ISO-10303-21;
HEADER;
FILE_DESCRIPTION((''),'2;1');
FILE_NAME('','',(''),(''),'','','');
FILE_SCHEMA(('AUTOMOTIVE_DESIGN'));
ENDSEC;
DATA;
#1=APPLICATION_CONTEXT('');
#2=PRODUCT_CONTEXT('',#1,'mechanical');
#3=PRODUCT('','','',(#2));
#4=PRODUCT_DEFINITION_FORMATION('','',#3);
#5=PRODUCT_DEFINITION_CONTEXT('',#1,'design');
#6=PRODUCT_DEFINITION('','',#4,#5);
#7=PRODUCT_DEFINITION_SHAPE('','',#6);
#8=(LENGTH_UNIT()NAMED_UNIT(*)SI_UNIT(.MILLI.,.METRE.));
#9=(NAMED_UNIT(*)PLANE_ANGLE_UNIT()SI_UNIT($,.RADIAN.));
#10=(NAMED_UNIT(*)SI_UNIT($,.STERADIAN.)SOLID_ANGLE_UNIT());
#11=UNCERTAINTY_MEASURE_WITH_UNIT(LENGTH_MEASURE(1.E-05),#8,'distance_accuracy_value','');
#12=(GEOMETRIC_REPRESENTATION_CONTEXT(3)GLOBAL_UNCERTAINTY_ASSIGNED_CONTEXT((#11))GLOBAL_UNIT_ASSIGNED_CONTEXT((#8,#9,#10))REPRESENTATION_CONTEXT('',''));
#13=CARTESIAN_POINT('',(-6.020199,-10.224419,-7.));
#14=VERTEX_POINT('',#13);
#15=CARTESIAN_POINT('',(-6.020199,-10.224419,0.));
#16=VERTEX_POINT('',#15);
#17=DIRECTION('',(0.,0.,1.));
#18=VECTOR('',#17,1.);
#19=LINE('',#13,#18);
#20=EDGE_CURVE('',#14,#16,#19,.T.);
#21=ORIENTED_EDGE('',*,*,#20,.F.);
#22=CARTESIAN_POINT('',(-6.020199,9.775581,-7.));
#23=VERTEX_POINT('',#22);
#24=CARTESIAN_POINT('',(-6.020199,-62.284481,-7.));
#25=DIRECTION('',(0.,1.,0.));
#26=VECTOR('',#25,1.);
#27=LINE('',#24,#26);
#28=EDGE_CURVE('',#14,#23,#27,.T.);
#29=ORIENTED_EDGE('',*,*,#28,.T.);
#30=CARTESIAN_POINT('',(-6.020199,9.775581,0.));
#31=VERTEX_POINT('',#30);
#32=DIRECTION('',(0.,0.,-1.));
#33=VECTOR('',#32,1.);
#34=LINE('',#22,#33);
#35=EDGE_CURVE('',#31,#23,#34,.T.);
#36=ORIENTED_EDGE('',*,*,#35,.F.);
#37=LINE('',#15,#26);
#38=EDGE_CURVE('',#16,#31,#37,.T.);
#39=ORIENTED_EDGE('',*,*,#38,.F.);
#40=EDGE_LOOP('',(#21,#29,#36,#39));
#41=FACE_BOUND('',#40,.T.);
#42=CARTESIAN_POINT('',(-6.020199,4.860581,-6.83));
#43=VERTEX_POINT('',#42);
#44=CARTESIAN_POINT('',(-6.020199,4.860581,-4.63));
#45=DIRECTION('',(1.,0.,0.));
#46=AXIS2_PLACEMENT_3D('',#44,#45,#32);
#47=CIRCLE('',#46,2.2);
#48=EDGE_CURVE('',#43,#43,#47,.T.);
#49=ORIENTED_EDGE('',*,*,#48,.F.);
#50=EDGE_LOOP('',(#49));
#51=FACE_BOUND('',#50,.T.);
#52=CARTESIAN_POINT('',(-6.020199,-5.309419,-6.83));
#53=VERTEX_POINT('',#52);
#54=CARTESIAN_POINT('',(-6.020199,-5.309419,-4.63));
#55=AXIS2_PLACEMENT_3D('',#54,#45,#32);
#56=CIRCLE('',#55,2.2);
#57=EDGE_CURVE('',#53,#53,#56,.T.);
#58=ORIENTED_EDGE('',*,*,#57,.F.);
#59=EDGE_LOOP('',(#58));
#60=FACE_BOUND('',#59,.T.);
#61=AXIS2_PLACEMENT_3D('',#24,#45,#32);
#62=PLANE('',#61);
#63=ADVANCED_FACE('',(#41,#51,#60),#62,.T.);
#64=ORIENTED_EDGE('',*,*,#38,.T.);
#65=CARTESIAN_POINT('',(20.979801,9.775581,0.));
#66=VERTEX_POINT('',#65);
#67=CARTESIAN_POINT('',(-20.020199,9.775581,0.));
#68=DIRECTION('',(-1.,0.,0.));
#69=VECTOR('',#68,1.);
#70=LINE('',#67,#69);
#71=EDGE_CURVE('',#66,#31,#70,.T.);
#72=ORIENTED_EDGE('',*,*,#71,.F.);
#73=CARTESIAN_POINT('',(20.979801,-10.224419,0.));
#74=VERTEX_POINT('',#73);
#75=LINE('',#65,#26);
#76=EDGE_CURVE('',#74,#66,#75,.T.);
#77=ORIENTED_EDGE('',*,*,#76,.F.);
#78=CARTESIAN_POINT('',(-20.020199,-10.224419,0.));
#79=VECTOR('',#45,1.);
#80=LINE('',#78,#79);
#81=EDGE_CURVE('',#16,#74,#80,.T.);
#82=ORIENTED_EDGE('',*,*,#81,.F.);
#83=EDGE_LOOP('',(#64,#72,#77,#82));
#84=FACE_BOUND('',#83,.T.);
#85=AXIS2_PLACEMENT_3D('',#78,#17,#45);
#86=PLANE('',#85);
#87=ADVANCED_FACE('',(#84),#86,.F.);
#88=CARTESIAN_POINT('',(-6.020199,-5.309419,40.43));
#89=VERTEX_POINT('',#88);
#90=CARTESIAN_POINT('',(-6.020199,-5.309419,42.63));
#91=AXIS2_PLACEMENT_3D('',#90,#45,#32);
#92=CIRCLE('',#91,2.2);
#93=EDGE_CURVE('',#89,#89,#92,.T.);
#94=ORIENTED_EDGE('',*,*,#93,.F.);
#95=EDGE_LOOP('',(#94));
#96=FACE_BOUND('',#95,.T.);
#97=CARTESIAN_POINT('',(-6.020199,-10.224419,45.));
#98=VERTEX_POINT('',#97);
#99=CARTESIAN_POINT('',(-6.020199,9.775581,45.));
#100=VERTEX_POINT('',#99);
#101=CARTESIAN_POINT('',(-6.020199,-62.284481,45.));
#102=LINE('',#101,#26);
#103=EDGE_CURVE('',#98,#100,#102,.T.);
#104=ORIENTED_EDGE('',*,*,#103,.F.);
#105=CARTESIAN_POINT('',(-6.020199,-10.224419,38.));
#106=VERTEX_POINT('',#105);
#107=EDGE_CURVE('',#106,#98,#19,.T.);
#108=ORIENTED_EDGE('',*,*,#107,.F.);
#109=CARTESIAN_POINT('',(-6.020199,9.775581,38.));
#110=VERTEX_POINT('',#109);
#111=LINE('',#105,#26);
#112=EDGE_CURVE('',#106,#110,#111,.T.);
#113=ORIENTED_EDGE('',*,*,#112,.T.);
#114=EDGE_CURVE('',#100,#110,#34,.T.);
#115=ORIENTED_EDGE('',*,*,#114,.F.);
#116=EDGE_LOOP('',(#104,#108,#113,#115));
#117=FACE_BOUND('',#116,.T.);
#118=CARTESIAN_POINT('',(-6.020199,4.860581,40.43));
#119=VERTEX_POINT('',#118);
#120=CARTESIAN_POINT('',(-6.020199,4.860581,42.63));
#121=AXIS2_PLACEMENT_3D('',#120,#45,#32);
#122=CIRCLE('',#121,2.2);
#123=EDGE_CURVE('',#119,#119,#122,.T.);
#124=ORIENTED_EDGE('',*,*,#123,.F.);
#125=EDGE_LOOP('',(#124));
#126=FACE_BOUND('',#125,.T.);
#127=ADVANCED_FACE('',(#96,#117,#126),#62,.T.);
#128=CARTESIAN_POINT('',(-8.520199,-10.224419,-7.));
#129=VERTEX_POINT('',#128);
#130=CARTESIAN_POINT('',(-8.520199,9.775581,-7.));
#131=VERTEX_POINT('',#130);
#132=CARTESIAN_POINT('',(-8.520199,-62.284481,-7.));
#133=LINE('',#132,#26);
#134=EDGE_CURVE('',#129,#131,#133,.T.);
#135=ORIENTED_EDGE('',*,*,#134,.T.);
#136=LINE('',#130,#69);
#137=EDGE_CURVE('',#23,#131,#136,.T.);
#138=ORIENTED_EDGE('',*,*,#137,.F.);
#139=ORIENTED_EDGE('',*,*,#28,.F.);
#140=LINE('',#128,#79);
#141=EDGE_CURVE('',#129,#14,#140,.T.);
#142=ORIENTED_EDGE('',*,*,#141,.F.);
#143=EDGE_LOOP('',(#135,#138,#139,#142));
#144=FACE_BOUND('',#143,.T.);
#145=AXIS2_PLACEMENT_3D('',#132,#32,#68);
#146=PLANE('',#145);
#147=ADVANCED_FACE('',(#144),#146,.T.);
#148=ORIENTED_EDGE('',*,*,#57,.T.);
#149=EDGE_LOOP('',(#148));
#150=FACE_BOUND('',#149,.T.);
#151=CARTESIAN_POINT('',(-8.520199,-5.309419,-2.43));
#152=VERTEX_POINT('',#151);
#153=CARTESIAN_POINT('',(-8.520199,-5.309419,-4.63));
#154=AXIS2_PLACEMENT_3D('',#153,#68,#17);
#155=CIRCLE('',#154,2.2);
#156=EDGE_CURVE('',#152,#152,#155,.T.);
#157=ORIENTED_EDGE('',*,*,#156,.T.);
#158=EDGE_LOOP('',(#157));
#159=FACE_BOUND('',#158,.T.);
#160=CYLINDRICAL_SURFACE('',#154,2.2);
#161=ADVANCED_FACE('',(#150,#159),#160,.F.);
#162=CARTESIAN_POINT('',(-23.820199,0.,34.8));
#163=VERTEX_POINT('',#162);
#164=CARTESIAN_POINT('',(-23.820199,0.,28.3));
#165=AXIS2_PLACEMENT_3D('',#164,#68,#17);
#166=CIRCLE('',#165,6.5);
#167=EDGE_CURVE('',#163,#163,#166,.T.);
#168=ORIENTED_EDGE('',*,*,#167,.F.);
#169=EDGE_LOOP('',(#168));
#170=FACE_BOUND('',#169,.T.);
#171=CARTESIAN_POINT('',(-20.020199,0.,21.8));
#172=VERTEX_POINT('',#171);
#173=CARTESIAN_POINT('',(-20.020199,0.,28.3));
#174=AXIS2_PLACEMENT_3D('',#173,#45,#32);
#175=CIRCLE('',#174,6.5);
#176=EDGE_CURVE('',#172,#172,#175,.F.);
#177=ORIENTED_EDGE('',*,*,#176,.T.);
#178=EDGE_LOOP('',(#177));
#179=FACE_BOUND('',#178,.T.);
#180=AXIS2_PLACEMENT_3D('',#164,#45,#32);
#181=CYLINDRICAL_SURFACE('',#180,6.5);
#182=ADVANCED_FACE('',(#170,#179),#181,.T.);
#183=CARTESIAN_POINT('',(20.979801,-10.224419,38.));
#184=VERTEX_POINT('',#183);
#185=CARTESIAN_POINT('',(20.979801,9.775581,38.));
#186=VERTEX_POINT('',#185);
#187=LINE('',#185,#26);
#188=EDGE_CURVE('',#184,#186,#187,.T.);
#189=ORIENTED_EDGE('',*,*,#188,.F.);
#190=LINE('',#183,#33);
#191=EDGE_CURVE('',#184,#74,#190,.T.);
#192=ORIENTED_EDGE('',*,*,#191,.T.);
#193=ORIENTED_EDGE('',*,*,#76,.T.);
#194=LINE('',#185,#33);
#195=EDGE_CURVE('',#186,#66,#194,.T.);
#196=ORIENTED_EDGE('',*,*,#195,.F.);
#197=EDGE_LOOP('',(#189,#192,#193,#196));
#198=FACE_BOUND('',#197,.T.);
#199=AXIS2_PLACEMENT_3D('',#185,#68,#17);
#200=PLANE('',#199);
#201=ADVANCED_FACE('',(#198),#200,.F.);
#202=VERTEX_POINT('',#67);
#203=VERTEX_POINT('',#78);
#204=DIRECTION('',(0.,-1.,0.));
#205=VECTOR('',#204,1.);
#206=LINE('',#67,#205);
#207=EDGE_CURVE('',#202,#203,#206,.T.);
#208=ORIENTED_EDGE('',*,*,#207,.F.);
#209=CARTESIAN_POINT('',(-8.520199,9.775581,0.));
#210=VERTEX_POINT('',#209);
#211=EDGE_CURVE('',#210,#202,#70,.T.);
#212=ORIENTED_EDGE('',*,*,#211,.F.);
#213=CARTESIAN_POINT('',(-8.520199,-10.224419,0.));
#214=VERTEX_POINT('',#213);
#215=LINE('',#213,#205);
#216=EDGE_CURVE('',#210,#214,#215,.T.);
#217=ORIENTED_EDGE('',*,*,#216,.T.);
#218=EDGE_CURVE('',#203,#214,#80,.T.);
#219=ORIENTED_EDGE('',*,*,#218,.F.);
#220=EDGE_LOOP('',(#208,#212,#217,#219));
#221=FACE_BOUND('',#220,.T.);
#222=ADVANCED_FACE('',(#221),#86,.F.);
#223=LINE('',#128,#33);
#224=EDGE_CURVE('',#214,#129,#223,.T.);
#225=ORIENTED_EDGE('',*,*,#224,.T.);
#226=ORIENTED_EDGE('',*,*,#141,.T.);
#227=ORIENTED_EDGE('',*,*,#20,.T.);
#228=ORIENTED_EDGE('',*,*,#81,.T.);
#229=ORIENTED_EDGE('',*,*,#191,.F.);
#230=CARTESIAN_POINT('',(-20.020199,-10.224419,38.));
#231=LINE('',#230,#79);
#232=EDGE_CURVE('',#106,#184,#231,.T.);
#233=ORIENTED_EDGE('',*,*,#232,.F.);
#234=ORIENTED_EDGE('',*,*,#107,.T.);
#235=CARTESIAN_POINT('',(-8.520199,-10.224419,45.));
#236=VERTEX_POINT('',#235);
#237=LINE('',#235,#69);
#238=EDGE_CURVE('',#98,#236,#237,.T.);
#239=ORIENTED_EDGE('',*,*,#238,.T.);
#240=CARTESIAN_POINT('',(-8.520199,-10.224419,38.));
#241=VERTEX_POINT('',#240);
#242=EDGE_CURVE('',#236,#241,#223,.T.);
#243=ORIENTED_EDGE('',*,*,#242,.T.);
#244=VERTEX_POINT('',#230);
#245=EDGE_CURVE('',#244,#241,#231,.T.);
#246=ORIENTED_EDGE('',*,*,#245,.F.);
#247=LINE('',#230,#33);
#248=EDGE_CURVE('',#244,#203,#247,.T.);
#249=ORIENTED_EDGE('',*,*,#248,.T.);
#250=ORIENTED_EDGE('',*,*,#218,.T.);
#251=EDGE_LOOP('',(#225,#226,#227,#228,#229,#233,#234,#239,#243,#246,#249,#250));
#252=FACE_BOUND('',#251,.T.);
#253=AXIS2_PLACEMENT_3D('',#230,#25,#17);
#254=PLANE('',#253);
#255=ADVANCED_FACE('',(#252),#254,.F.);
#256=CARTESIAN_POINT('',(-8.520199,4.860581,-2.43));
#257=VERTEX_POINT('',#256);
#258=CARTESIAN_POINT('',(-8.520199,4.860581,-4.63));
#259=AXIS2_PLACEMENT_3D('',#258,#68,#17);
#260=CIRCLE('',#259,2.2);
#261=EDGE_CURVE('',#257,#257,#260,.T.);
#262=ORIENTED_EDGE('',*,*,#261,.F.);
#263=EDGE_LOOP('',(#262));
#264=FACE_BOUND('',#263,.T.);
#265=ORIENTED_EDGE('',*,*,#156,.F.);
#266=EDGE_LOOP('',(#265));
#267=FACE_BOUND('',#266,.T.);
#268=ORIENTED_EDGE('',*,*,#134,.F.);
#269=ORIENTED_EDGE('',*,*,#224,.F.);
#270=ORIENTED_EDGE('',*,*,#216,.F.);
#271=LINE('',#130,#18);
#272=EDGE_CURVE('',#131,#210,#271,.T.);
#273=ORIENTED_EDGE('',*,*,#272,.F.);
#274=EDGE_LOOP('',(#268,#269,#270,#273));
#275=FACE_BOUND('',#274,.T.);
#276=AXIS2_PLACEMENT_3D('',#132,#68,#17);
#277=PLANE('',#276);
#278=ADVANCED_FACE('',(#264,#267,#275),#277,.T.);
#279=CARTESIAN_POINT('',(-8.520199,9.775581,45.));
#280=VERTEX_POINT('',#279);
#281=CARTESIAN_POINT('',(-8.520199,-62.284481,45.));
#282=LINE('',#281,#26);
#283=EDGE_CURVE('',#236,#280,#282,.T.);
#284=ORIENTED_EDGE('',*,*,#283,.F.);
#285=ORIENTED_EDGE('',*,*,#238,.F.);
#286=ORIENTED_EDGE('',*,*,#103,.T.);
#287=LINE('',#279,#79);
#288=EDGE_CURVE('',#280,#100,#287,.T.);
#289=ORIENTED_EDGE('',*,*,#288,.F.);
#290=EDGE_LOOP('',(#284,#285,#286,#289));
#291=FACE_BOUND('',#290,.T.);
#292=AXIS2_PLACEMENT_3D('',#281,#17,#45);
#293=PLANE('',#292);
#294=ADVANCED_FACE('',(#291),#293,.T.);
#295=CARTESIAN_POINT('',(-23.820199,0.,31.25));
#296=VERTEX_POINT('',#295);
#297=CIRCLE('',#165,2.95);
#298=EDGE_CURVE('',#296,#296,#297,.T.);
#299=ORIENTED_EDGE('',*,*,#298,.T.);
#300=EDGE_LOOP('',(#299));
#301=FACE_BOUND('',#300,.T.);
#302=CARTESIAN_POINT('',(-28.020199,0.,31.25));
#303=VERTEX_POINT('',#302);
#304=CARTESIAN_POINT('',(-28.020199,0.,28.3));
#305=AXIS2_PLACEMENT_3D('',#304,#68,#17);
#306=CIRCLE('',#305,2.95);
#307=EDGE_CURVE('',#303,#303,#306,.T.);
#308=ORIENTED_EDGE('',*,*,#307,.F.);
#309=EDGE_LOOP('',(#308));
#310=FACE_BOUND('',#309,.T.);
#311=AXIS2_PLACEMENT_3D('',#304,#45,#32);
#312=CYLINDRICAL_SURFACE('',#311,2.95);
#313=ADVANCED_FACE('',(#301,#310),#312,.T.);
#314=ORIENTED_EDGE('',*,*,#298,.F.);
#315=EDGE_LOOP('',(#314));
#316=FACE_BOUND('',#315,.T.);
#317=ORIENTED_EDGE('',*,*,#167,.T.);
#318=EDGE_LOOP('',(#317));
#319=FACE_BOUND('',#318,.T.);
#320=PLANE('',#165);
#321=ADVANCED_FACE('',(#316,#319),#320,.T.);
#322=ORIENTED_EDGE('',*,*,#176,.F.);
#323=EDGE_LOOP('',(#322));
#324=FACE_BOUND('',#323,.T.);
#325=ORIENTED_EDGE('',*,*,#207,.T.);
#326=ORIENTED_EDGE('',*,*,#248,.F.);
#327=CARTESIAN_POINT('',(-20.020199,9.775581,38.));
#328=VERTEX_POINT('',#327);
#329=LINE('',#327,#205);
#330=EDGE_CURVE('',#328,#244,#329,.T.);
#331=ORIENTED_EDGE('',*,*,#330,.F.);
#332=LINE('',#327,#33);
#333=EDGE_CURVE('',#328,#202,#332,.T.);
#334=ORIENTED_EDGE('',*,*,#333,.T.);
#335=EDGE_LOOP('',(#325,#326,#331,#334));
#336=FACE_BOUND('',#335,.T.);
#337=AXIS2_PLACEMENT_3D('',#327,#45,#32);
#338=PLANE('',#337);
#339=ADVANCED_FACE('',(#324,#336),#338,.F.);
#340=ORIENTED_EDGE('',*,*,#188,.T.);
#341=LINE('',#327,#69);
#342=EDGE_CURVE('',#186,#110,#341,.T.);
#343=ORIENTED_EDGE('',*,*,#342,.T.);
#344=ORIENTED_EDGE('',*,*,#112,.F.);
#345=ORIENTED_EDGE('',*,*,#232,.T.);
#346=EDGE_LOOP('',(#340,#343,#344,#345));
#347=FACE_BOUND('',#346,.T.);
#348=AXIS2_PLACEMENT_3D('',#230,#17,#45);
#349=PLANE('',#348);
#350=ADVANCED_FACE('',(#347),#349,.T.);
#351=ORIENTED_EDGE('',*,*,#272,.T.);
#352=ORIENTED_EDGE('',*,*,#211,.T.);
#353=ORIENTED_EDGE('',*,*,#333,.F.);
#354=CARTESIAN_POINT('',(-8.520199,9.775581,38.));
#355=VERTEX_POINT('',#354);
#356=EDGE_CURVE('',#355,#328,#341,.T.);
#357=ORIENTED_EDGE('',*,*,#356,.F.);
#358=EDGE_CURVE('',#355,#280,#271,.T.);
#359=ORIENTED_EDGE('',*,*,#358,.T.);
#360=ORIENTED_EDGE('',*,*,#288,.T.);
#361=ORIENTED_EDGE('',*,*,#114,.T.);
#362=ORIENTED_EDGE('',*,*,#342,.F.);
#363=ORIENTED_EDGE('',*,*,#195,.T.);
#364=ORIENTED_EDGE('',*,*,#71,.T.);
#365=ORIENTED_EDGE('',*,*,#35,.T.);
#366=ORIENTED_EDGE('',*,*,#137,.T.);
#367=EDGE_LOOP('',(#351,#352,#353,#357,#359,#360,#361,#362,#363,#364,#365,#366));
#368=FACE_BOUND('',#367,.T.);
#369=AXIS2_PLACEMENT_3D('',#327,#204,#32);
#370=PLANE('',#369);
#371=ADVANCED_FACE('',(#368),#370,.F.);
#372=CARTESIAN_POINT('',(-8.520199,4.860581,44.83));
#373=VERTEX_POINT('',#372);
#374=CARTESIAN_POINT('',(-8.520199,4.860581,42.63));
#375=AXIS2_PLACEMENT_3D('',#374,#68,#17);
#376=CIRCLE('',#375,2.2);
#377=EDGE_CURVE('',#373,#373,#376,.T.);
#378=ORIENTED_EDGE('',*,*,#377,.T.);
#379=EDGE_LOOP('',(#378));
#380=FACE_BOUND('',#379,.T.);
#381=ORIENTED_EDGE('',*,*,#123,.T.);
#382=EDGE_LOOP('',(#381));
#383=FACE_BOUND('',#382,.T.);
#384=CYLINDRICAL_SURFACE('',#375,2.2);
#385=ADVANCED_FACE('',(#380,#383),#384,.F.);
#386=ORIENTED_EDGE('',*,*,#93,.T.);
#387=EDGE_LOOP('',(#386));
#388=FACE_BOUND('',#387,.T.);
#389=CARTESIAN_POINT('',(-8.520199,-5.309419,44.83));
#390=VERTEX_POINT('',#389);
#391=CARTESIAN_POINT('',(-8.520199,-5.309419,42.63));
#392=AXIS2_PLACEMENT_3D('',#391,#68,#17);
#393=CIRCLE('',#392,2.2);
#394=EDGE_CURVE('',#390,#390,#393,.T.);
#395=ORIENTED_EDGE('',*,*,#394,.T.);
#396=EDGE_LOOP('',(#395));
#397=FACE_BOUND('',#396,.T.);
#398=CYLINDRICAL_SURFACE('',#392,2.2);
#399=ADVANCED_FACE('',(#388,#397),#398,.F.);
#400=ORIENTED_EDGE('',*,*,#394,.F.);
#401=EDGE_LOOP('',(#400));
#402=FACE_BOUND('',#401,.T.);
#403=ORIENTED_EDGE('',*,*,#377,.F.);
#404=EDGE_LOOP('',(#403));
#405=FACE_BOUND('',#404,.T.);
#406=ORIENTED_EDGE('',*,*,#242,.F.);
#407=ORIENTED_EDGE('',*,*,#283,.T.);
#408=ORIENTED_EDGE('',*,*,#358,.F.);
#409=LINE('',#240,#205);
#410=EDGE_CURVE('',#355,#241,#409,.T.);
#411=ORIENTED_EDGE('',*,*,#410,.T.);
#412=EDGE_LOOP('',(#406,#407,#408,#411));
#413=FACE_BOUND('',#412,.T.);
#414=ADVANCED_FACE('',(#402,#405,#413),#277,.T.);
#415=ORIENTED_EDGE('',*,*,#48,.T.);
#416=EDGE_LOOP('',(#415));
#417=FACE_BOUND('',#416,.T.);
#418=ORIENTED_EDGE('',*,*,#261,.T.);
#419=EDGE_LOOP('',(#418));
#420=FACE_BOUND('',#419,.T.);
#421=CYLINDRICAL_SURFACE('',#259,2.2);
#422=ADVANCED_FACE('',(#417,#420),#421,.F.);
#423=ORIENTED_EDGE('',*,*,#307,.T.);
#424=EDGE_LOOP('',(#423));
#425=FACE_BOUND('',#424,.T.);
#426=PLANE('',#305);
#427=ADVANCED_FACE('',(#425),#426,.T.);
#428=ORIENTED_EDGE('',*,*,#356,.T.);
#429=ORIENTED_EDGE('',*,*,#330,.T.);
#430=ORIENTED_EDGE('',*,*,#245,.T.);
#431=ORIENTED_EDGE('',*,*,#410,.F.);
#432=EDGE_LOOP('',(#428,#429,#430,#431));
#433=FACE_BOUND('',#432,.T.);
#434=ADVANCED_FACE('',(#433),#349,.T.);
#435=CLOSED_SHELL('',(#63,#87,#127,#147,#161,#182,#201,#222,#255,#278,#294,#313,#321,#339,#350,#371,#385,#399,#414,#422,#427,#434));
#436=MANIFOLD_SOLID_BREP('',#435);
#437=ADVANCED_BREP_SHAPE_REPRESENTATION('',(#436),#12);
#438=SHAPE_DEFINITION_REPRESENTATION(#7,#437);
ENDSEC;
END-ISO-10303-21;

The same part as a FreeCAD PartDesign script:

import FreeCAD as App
import Part
import Sketcher
from FreeCAD import Vector
Q = App.Units.Quantity

doc = App.newDocument("Part")
body = doc.addObject("PartDesign::Body", "Body")

sketch1 = doc.addObject("Sketcher::SketchObject", "Sketch")
body.addObject(sketch1)
sketch1.AttachmentSupport = (doc.XY_Plane, [""])
sketch1.MapMode = "FlatFace"
sketch1.addGeometry([
    Part.LineSegment(Vector(-20, 10, 0), Vector(-20, -10, 0)),
    Part.LineSegment(Vector(-20, -10, 0), Vector(21, -10, 0)),
    Part.LineSegment(Vector(21, -10, 0), Vector(21, 10, 0)),
    Part.LineSegment(Vector(21, 10, 0), Vector(-20, 10, 0)),
], False)
sketch1.addConstraint([
    Sketcher.Constraint("Coincident", 0, 2, 1, 1),
    Sketcher.Constraint("Coincident", 1, 2, 2, 1),
    Sketcher.Constraint("Coincident", 2, 2, 3, 1),
    Sketcher.Constraint("Coincident", 3, 2, 0, 1),
    Sketcher.Constraint("Vertical", 0),
    Sketcher.Constraint("Horizontal", 1),
    Sketcher.Constraint("Vertical", 2),
    Sketcher.Constraint("Horizontal", 3),
    Sketcher.Constraint("DistanceX", 1, 1, 1, 2, Q("41 mm")),
    Sketcher.Constraint("DistanceY", 0, 2, 0, 1, Q("20 mm")),
    Sketcher.Constraint("DistanceX", 0, 2, -1, 1, Q("20.020199 mm")),
    Sketcher.Constraint("DistanceY", 0, 2, -1, 1, Q("10.224419 mm")),
])
pad1 = doc.addObject("PartDesign::Pad", "Pad")
body.addObject(pad1)
pad1.Profile = sketch1
pad1.Length = 38

sketch2 = doc.addObject("Sketcher::SketchObject", "Sketch001")
body.addObject(sketch2)
sketch2.AttachmentSupport = (doc.XZ_Plane, [""])
sketch2.MapMode = "FlatFace"
sketch2.AttachmentOffset = App.Placement(Vector(0, 0, -9.775581), App.Rotation())
sketch2.addGeometry([
    Part.LineSegment(Vector(-8.5, -7, 0), Vector(-8.5, 45, 0)),
    Part.LineSegment(Vector(-8.5, 45, 0), Vector(-6, 45, 0)),
    Part.LineSegment(Vector(-6, 45, 0), Vector(-6, -7, 0)),
    Part.LineSegment(Vector(-6, -7, 0), Vector(-8.5, -7, 0)),
], False)
sketch2.addConstraint([
    Sketcher.Constraint("Coincident", 0, 2, 1, 1),
    Sketcher.Constraint("Coincident", 1, 2, 2, 1),
    Sketcher.Constraint("Coincident", 2, 2, 3, 1),
    Sketcher.Constraint("Coincident", 3, 2, 0, 1),
    Sketcher.Constraint("Vertical", 0),
    Sketcher.Constraint("Horizontal", 1),
    Sketcher.Constraint("Vertical", 2),
    Sketcher.Constraint("Horizontal", 3),
    Sketcher.Constraint("DistanceY", 0, 1, 0, 2, Q("52 mm")),
    Sketcher.Constraint("DistanceX", 1, 1, 1, 2, Q("2.5 mm")),
    Sketcher.Constraint("DistanceY", -1, 1, 0, 2, Q("45 mm")),
    Sketcher.Constraint("DistanceX", 0, 2, -1, 1, Q("8.520199 mm")),
])
pad2 = doc.addObject("PartDesign::Pad", "Pad001")
body.addObject(pad2)
pad2.Profile = sketch2
pad2.Length = 20

sketch3 = doc.addObject("Sketcher::SketchObject", "Sketch002")
body.addObject(sketch3)
sketch3.AttachmentSupport = (doc.YZ_Plane, [""])
sketch3.MapMode = "FlatFace"
sketch3.AttachmentOffset = App.Placement(Vector(0, 0, -20.020199), App.Rotation())
sketch3.addGeometry(Part.Circle(Vector(0, 28, 0), Vector(0, 0, 1), 6), False)
sketch3.addConstraint([
    Sketcher.Constraint("PointOnObject", 0, 3, -2),
    Sketcher.Constraint("Diameter", 0, Q("13 mm")),
    Sketcher.Constraint("DistanceY", -1, 1, 0, 3, Q("28.3 mm")),
])
pad3 = doc.addObject("PartDesign::Pad", "Pad002")
body.addObject(pad3)
pad3.Profile = sketch3
pad3.Length = 3.8
pad3.Reversed = True

sketch4 = doc.addObject("Sketcher::SketchObject", "Sketch003")
body.addObject(sketch4)
sketch4.AttachmentSupport = (doc.YZ_Plane, [""])
sketch4.MapMode = "FlatFace"
sketch4.AttachmentOffset = App.Placement(Vector(0, 0, -23.820199), App.Rotation())
sketch4.addGeometry(Part.Circle(Vector(0, 28.3, 0), Vector(0, 0, 1), 3), False)
sketch4.addConstraint([
    Sketcher.Constraint("PointOnObject", 0, 3, -2),
    Sketcher.Constraint("Diameter", 0, Q("5.9 mm")),
    Sketcher.Constraint("DistanceY", -1, 1, 0, 3, Q("28.3 mm")),
])
pad4 = doc.addObject("PartDesign::Pad", "Pad003")
body.addObject(pad4)
pad4.Profile = sketch4
pad4.Length = 4.2
pad4.Reversed = True

sketch5 = doc.addObject("Sketcher::SketchObject", "Sketch004")
body.addObject(sketch5)
sketch5.AttachmentSupport = (doc.YZ_Plane, [""])
sketch5.MapMode = "FlatFace"
sketch5.AttachmentOffset = App.Placement(Vector(0, 0, -8.520199), App.Rotation())
sketch5.addGeometry([
    Part.Circle(Vector(4.9, -4.6, 0), Vector(0, 0, 1), 2.2),
    Part.Circle(Vector(-5.3, -4.6, 0), Vector(0, 0, 1), 2.2),
    Part.Circle(Vector(4.9, 42.6, 0), Vector(0, 0, 1), 2.2),
    Part.Circle(Vector(-5.3, 42.6, 0), Vector(0, 0, 1), 2.2),
], False)
sketch5.addConstraint([
    Sketcher.Constraint("Equal", 0, 1),
    Sketcher.Constraint("Equal", 1, 2),
    Sketcher.Constraint("Equal", 2, 3),
    Sketcher.Constraint("Horizontal", 0, 3, 1, 3),
    Sketcher.Constraint("Horizontal", 2, 3, 3, 3),
    Sketcher.Constraint("Vertical", 0, 3, 2, 3),
    Sketcher.Constraint("Vertical", 1, 3, 3, 3),
    Sketcher.Constraint("Diameter", 0, Q("4.4 mm")),
    Sketcher.Constraint("DistanceY", 0, 3, -1, 1, Q("4.63 mm")),
    Sketcher.Constraint("DistanceY", -1, 1, 2, 3, Q("42.63 mm")),
    Sketcher.Constraint("DistanceX", 1, 3, 0, 3, Q("10.17 mm")),
    Sketcher.Constraint("DistanceX", -1, 1, 0, 3, Q("4.860581 mm")),
])
doc.recompute()
hole = doc.addObject("PartDesign::Hole", "Hole")
body.addObject(hole)
hole.Profile = sketch5
hole.ThreadType = "None"
hole.Diameter = 4.4
hole.DepthType = "Dimension"
hole.Depth = 150
hole.DrillPoint = "Angled"
hole.DrillPointAngle = 118
hole.Reversed = True

doc.recompute()
